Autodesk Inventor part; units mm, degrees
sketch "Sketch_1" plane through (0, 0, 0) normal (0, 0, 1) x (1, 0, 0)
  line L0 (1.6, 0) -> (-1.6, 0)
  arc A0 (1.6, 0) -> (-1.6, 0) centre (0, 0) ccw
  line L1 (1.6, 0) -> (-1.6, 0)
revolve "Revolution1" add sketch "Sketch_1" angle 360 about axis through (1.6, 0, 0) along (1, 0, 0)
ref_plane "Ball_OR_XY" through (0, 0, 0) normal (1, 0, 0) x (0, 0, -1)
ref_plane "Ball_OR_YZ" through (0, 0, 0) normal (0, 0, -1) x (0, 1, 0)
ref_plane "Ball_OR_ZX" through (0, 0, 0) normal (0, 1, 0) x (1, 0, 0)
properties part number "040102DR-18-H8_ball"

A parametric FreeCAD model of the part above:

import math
import FreeCAD as App
import Part
import Sketcher

V = App.Vector

doc = App.newDocument("Part")
body = doc.addObject("PartDesign::Body", "Body")

sketch1 = body.newObject("Sketcher::SketchObject", "Sketch")
sketch1.AttachmentSupport = (doc.getObject("XY_Plane"), [""])
sketch1.MapMode = "FlatFace"
sketch1.addGeometry(Part.LineSegment(V(-1.6, 0, 0), V(1.6, 0, 0)), False)
sketch1.addGeometry(Part.ArcOfCircle(Part.Circle(V(0, 0, 0), V(0, 0, 1), 1.6), math.radians(0), math.radians(180)), False)
sketch1.addConstraint(Sketcher.Constraint("Coincident", 0, 1, 1, 2))
sketch1.addConstraint(Sketcher.Constraint("Coincident", 1, 1, 0, 2))
sketch1.addConstraint(Sketcher.Constraint("Horizontal", 0))
sketch1.addConstraint(Sketcher.Constraint("Coincident", 1, 3, -1, 1))
sketch1.addConstraint(Sketcher.Constraint("PointOnObject", 0, 1, -1))
sketch1.addConstraint(Sketcher.Constraint("Radius", 1, 1.6))
revolution = body.newObject("PartDesign::Revolution", "Revolution")
revolution.Profile = sketch1
revolution.ReferenceAxis = (sketch1, ["H_Axis"])
revolution.Angle = 360

doc.recompute()
